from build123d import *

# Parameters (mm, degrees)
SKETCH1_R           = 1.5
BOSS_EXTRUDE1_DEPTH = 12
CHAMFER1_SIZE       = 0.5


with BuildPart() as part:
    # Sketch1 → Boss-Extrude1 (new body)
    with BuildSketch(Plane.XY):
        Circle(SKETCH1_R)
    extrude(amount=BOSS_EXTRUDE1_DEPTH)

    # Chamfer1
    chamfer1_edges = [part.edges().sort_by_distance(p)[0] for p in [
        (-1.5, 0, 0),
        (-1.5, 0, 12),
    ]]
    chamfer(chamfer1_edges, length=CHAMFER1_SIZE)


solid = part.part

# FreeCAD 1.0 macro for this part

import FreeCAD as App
import Part
import Sketcher
from FreeCAD import Vector
Q = App.Units.Quantity


def edges_at(feature, points):
    """Names of the edges that pass closest to the given points."""
    edges = feature.Shape.Edges
    near = lambda p: min(range(len(edges)), key=lambda i: edges[i].distToShape(Part.Vertex(*p))[0])
    return sorted({f"Edge{near(p) + 1}" for p in points})

doc = App.newDocument("Part")
body = doc.addObject("PartDesign::Body", "Body")

sketch1 = body.newObject("Sketcher::SketchObject", "Sketch")
sketch1.AttachmentSupport = (doc.getObject("XY_Plane"), [""])
sketch1.MapMode = "FlatFace"
sketch1.addGeometry(Part.Circle(Vector(0, 0, 0), Vector(0, 0, 1), 1.5), False)
sketch1.addConstraint([
    Sketcher.Constraint("Coincident", 0, 3, -1, 1),
    Sketcher.Constraint("Diameter", 0, Q("3 mm")),
])
pad1 = body.newObject("PartDesign::Pad", "Pad")
pad1.Profile = sketch1
pad1.Length = 12
doc.recompute()

chamfer = body.newObject("PartDesign::Chamfer", "Chamfer")
chamfer.Base = (pad1, edges_at(pad1, [(-1.5, 0, 0), (-1.5, 0, 12)]))
chamfer.Size = 0.5

doc.recompute()
